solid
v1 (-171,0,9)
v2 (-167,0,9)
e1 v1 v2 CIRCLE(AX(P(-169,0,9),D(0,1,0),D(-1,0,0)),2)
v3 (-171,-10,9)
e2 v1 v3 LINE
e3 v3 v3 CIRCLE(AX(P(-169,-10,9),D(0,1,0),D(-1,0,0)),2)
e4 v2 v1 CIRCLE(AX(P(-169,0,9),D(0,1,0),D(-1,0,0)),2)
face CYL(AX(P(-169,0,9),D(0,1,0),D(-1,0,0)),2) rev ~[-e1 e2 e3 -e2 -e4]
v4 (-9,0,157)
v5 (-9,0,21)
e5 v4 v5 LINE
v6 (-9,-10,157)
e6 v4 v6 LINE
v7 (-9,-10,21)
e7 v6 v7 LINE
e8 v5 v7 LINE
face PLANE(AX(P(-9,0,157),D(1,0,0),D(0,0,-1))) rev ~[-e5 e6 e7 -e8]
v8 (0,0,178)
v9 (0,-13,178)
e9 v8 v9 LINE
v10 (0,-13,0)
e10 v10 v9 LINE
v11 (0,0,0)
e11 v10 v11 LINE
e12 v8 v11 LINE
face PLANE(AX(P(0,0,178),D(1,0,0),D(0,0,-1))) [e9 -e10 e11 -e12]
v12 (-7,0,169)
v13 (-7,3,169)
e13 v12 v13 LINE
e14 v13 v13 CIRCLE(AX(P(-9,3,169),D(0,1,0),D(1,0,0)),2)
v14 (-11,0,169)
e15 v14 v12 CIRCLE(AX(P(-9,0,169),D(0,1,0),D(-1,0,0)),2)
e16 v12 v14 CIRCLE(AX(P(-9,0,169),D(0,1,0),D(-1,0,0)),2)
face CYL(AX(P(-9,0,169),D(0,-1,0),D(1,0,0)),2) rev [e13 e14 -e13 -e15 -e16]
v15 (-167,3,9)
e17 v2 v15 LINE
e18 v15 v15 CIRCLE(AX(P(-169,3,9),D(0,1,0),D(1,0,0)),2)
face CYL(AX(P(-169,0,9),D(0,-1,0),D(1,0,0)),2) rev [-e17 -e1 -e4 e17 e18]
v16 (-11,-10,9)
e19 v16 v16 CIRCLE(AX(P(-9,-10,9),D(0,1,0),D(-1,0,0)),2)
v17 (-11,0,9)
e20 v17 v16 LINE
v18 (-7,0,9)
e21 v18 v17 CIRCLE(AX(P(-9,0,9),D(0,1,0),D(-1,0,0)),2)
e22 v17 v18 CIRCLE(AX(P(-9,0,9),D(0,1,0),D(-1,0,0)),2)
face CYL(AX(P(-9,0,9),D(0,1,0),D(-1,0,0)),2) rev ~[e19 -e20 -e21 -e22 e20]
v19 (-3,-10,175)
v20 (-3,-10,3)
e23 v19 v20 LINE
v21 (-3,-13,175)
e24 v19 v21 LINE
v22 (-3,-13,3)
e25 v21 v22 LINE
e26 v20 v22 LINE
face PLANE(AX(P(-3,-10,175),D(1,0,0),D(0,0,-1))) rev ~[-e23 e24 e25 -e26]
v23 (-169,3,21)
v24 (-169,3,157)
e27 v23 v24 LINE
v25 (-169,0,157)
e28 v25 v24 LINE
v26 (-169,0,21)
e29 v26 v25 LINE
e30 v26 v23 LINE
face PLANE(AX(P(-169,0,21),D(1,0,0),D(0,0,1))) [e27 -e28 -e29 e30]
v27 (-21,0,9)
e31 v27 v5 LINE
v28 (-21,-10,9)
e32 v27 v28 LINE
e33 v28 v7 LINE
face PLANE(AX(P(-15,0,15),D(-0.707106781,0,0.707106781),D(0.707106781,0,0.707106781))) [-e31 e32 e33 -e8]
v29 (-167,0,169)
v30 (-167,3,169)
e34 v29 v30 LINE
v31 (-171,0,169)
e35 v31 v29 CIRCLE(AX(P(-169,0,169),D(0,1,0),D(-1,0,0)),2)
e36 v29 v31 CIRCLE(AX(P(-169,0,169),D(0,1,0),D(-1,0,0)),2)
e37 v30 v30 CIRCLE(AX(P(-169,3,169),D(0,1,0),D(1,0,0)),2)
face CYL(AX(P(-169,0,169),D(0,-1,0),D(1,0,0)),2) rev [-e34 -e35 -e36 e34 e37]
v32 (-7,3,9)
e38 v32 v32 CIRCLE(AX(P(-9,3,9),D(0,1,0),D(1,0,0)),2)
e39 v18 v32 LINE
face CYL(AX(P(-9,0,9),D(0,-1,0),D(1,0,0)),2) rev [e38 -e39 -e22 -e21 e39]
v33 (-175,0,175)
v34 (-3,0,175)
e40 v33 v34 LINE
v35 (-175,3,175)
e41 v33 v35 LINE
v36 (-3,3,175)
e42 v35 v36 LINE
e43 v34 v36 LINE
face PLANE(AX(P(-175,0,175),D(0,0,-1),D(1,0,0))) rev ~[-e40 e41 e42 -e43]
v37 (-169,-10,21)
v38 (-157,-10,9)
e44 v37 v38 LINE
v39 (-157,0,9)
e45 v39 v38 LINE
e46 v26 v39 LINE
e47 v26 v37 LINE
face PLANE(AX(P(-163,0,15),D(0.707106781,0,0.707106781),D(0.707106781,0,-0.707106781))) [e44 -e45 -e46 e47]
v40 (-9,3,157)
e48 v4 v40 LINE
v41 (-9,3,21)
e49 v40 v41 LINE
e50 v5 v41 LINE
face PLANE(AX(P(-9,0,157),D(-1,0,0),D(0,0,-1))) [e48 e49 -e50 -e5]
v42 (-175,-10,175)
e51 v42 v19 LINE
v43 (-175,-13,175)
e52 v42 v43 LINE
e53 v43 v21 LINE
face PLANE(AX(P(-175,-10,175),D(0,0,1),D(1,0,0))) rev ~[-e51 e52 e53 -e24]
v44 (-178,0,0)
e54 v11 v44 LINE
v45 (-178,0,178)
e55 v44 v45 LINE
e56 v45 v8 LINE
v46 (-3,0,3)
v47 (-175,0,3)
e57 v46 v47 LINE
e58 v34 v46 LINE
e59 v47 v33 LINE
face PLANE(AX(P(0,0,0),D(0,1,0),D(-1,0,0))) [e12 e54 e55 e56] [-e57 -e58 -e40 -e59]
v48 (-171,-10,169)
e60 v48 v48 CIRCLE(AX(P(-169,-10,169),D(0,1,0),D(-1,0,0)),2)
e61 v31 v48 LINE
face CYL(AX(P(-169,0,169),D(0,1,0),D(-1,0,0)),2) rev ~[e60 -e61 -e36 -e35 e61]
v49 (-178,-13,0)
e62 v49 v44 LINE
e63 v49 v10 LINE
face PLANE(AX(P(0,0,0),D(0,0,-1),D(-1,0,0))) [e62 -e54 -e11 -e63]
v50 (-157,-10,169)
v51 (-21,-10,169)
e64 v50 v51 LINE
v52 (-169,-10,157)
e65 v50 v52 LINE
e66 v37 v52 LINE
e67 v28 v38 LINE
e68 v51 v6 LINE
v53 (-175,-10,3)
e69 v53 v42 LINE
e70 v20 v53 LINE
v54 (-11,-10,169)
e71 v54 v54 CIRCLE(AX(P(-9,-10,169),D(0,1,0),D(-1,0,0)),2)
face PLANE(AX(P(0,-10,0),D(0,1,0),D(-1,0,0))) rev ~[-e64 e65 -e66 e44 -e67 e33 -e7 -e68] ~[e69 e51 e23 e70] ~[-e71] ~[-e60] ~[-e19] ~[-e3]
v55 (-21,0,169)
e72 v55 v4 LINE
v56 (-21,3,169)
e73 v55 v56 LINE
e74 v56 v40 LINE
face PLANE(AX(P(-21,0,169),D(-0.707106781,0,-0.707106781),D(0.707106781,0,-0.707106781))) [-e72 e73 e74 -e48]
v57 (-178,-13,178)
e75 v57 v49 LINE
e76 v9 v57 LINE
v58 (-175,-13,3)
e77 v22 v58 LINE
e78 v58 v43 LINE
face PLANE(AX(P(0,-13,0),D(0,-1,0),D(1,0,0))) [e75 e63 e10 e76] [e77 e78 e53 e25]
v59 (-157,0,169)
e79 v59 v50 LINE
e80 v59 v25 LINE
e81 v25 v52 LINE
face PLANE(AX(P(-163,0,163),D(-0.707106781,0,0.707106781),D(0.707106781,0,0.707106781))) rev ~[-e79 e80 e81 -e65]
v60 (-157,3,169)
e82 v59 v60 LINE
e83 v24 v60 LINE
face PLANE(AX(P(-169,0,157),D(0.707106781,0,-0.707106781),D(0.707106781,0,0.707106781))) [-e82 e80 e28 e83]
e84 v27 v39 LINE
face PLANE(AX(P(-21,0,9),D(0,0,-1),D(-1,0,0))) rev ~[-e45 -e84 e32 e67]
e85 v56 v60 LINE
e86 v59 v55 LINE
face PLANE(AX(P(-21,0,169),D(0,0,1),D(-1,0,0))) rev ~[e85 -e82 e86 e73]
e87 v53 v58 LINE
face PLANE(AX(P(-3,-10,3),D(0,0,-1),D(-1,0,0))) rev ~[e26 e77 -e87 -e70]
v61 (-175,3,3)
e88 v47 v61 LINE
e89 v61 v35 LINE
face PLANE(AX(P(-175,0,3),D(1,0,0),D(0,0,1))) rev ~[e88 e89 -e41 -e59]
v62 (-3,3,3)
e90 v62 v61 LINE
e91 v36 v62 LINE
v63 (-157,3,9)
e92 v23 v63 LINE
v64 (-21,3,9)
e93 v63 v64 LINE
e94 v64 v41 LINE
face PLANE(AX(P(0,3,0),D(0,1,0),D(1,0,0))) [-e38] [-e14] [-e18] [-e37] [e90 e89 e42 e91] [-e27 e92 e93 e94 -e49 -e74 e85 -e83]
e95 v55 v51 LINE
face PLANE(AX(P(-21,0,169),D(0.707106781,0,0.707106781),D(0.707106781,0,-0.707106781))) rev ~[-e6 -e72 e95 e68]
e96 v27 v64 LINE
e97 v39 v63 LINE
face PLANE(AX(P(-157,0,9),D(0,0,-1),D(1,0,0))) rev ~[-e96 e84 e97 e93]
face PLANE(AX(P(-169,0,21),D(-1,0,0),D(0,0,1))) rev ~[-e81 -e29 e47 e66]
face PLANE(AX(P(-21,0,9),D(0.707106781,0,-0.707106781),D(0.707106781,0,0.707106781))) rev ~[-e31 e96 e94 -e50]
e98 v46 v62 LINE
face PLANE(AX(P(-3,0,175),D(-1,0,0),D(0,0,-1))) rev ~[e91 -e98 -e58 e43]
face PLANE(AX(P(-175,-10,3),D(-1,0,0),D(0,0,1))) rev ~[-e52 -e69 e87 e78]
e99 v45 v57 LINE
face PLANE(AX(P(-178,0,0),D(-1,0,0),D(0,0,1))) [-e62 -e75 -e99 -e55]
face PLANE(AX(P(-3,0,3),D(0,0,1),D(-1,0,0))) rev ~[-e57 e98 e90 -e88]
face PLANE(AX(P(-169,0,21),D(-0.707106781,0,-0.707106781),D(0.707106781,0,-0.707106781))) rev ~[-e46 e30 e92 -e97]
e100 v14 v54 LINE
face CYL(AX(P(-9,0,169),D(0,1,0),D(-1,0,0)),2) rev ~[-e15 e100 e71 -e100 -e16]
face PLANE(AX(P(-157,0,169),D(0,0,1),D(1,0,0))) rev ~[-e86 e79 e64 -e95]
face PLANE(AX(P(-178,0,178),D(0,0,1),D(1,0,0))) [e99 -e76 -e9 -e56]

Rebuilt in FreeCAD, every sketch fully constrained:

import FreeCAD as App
import Part
import Sketcher


def add_polygon(sketch, points):
    """Adds a closed chain of lines whose ends are joined by coincident constraints."""
    first, n = sketch.GeometryCount, len(points)
    for a, b in zip(points, points[1:] + points[:1]):
        sketch.addGeometry(Part.LineSegment(App.Vector(*a, 0), App.Vector(*b, 0)), False)
    for i in range(n):
        sketch.addConstraint(Sketcher.Constraint("Coincident", first + i, 2, first + (i + 1) % n, 1))

doc = App.newDocument("Part")
body = doc.addObject("PartDesign::Body", "Body")

sketch1 = body.newObject("Sketcher::SketchObject", "Sketch")
sketch1.AttachmentSupport = (doc.getObject("XZ_Plane"), [""])
sketch1.MapMode = "FlatFace"
add_polygon(sketch1, [(0, 178), (0, 0), (-178, 0), (-178, 178)])
sketch1.addGeometry(Part.Circle(App.Vector(-9, 9, 0), App.Vector(0, 0, 1), 2), False)
sketch1.addGeometry(Part.Circle(App.Vector(-169, 9, 0), App.Vector(0, 0, 1), 2), False)
sketch1.addGeometry(Part.Circle(App.Vector(-9, 169, 0), App.Vector(0, 0, 1), 2), False)
add_polygon(sketch1, [(-157, 169), (-169, 157), (-169, 21), (-157, 9), (-21, 9), (-9, 21), (-9, 157), (-21, 169)])
sketch1.addGeometry(Part.Circle(App.Vector(-169, 169, 0), App.Vector(0, 0, 1), 2), False)
sketch1.addConstraint([
    Sketcher.Constraint("Vertical", 0),
    Sketcher.Constraint("Horizontal", 1),
    Sketcher.Constraint("Vertical", 2),
    Sketcher.Constraint("Horizontal", 3),
    Sketcher.Constraint("Vertical", 8),
    Sketcher.Constraint("Horizontal", 10),
    Sketcher.Constraint("Vertical", 12),
    Sketcher.Constraint("Horizontal", 14),
    Sketcher.Constraint("Coincident", 0, 2, -1, 1),
    Sketcher.Constraint("Equal", 4, 5),
    Sketcher.Constraint("Equal", 5, 6),
    Sketcher.Constraint("Equal", 6, 15),
    Sketcher.Constraint("Perpendicular", 7, 9),
    Sketcher.Constraint("Perpendicular", 9, 11),
    Sketcher.Constraint("Perpendicular", 11, 13),
    Sketcher.Constraint("Horizontal", 4, 3, 5, 3),
    Sketcher.Constraint("Horizontal", 6, 3, 15, 3),
    Sketcher.Constraint("Horizontal", 5, 3, 9, 2),
    Sketcher.Constraint("Horizontal", 8, 2, 11, 2),
    Sketcher.Constraint("Horizontal", 7, 2, 12, 2),
    Sketcher.Constraint("Horizontal", 15, 3, 13, 2),
    Sketcher.Constraint("Vertical", 4, 3, 6, 3),
    Sketcher.Constraint("Vertical", 5, 3, 15, 3),
    Sketcher.Constraint("Vertical", 15, 3, 7, 2),
    Sketcher.Constraint("Vertical", 6, 3, 11, 2),
    Sketcher.Constraint("Vertical", 10, 2, 13, 2),
    Sketcher.Constraint("Vertical", 9, 2, 14, 2),
    Sketcher.Constraint("Equal", 3, 0),
    Sketcher.Constraint("Equal", 14, 8),
    Sketcher.Constraint("DistanceX", 1, 2, 1, 1, 178.0),
    Sketcher.Constraint("Diameter", 4, 4.0),
    Sketcher.Constraint("DistanceX", 4, 3, -1, 1, 9.0),
    Sketcher.Constraint("DistanceY", -1, 1, 4, 3, 9.0),
    Sketcher.Constraint("DistanceX", 1, 2, 5, 3, 9.0),
    Sketcher.Constraint("DistanceX", 10, 1, 10, 2, 136.0),
])
pad1 = body.newObject("PartDesign::Pad", "Pad")
pad1.Profile = sketch1
pad1.Length = 10

sketch2 = body.newObject("Sketcher::SketchObject", "Sketch001")
sketch2.AttachmentSupport = (doc.getObject("XZ_Plane"), [""])
sketch2.MapMode = "FlatFace"
sketch2.AttachmentOffset = App.Placement(App.Vector(0, 0, 10), App.Rotation())
add_polygon(sketch2, [(-178, 178), (-178, 0), (0, 0), (0, 178)])
add_polygon(sketch2, [(-3, 175), (-3, 3), (-175, 3), (-175, 175)])
sketch2.addConstraint([
    Sketcher.Constraint("Vertical", 0),
    Sketcher.Constraint("Horizontal", 1),
    Sketcher.Constraint("Vertical", 2),
    Sketcher.Constraint("Horizontal", 3),
    Sketcher.Constraint("Vertical", 4),
    Sketcher.Constraint("Horizontal", 5),
    Sketcher.Constraint("Vertical", 6),
    Sketcher.Constraint("Horizontal", 7),
    Sketcher.Constraint("Coincident", 1, 2, -1, 1),
    Sketcher.Constraint("Equal", 3, 0),
    Sketcher.Constraint("Equal", 7, 4),
    Sketcher.Constraint("DistanceX", 5, 2, 5, 1, 172.0),
    Sketcher.Constraint("DistanceX", 1, 1, 1, 2, 178.0),
    Sketcher.Constraint("DistanceX", 4, 2, -1, 1, 3.0),
    Sketcher.Constraint("DistanceY", -1, 1, 4, 2, 3.0),
])
pad2 = body.newObject("PartDesign::Pad", "Pad001")
pad2.Profile = sketch2
pad2.Length = 3

sketch3 = body.newObject("Sketcher::SketchObject", "Sketch002")
sketch3.AttachmentSupport = (doc.getObject("XZ_Plane"), [""])
sketch3.MapMode = "FlatFace"
add_polygon(sketch3, [(-3, 175), (-3, 3), (-175, 3), (-175, 175)])
sketch3.addGeometry(Part.Circle(App.Vector(-169, 169, 0), App.Vector(0, 0, 1), 2), False)
sketch3.addGeometry(Part.Circle(App.Vector(-9, 169, 0), App.Vector(0, 0, 1), 2), False)
sketch3.addGeometry(Part.Circle(App.Vector(-169, 9, 0), App.Vector(0, 0, 1), 2), False)
add_polygon(sketch3, [(-169, 157), (-169, 21), (-157, 9), (-21, 9), (-9, 21), (-9, 157), (-21, 169), (-157, 169)])
sketch3.addGeometry(Part.Circle(App.Vector(-9, 9, 0), App.Vector(0, 0, 1), 2), False)
sketch3.addConstraint([
    Sketcher.Constraint("Vertical", 0),
    Sketcher.Constraint("Horizontal", 1),
    Sketcher.Constraint("Vertical", 2),
    Sketcher.Constraint("Horizontal", 3),
    Sketcher.Constraint("Vertical", 7),
    Sketcher.Constraint("Horizontal", 9),
    Sketcher.Constraint("Vertical", 11),
    Sketcher.Constraint("Horizontal", 13),
    Sketcher.Constraint("Equal", 4, 5),
    Sketcher.Constraint("Equal", 5, 6),
    Sketcher.Constraint("Equal", 6, 15),
    Sketcher.Constraint("Perpendicular", 8, 10),
    Sketcher.Constraint("Perpendicular", 10, 12),
    Sketcher.Constraint("Perpendicular", 12, 14),
    Sketcher.Constraint("Horizontal", 4, 3, 5, 3),
    Sketcher.Constraint("Horizontal", 6, 3, 15, 3),
    Sketcher.Constraint("Horizontal", 15, 3, 8, 2),
    Sketcher.Constraint("Horizontal", 7, 2, 10, 2),
    Sketcher.Constraint("Horizontal", 5, 3, 12, 2),
    Sketcher.Constraint("Horizontal", 11, 2, 14, 2),
    Sketcher.Constraint("Vertical", 4, 3, 6, 3),
    Sketcher.Constraint("Vertical", 5, 3, 15, 3),
    Sketcher.Constraint("Vertical", 6, 3, 7, 2),
    Sketcher.Constraint("Vertical", 15, 3, 10, 2),
    Sketcher.Constraint("Vertical", 9, 2, 12, 2),
    Sketcher.Constraint("Vertical", 8, 2, 13, 2),
    Sketcher.Constraint("Equal", 3, 0),
    Sketcher.Constraint("Equal", 13, 7),
    Sketcher.Constraint("Diameter", 4, 4.0),
    Sketcher.Constraint("DistanceX", 1, 2, 1, 1, 172.0),
    Sketcher.Constraint("DistanceX", 9, 1, 9, 2, 136.0),
    Sketcher.Constraint("DistanceX", 4, 3, -1, 1, 169.0),
    Sketcher.Constraint("DistanceY", -1, 1, 4, 3, 169.0),
    Sketcher.Constraint("DistanceX", 5, 3, -1, 1, 9.0),
    Sketcher.Constraint("DistanceX", 0, 2, -1, 1, 3.0),
    Sketcher.Constraint("DistanceY", -1, 1, 0, 2, 3.0),
])
pad3 = body.newObject("PartDesign::Pad", "Pad002")
pad3.Profile = sketch3
pad3.Length = 3
pad3.Reversed = True

doc.recompute()
